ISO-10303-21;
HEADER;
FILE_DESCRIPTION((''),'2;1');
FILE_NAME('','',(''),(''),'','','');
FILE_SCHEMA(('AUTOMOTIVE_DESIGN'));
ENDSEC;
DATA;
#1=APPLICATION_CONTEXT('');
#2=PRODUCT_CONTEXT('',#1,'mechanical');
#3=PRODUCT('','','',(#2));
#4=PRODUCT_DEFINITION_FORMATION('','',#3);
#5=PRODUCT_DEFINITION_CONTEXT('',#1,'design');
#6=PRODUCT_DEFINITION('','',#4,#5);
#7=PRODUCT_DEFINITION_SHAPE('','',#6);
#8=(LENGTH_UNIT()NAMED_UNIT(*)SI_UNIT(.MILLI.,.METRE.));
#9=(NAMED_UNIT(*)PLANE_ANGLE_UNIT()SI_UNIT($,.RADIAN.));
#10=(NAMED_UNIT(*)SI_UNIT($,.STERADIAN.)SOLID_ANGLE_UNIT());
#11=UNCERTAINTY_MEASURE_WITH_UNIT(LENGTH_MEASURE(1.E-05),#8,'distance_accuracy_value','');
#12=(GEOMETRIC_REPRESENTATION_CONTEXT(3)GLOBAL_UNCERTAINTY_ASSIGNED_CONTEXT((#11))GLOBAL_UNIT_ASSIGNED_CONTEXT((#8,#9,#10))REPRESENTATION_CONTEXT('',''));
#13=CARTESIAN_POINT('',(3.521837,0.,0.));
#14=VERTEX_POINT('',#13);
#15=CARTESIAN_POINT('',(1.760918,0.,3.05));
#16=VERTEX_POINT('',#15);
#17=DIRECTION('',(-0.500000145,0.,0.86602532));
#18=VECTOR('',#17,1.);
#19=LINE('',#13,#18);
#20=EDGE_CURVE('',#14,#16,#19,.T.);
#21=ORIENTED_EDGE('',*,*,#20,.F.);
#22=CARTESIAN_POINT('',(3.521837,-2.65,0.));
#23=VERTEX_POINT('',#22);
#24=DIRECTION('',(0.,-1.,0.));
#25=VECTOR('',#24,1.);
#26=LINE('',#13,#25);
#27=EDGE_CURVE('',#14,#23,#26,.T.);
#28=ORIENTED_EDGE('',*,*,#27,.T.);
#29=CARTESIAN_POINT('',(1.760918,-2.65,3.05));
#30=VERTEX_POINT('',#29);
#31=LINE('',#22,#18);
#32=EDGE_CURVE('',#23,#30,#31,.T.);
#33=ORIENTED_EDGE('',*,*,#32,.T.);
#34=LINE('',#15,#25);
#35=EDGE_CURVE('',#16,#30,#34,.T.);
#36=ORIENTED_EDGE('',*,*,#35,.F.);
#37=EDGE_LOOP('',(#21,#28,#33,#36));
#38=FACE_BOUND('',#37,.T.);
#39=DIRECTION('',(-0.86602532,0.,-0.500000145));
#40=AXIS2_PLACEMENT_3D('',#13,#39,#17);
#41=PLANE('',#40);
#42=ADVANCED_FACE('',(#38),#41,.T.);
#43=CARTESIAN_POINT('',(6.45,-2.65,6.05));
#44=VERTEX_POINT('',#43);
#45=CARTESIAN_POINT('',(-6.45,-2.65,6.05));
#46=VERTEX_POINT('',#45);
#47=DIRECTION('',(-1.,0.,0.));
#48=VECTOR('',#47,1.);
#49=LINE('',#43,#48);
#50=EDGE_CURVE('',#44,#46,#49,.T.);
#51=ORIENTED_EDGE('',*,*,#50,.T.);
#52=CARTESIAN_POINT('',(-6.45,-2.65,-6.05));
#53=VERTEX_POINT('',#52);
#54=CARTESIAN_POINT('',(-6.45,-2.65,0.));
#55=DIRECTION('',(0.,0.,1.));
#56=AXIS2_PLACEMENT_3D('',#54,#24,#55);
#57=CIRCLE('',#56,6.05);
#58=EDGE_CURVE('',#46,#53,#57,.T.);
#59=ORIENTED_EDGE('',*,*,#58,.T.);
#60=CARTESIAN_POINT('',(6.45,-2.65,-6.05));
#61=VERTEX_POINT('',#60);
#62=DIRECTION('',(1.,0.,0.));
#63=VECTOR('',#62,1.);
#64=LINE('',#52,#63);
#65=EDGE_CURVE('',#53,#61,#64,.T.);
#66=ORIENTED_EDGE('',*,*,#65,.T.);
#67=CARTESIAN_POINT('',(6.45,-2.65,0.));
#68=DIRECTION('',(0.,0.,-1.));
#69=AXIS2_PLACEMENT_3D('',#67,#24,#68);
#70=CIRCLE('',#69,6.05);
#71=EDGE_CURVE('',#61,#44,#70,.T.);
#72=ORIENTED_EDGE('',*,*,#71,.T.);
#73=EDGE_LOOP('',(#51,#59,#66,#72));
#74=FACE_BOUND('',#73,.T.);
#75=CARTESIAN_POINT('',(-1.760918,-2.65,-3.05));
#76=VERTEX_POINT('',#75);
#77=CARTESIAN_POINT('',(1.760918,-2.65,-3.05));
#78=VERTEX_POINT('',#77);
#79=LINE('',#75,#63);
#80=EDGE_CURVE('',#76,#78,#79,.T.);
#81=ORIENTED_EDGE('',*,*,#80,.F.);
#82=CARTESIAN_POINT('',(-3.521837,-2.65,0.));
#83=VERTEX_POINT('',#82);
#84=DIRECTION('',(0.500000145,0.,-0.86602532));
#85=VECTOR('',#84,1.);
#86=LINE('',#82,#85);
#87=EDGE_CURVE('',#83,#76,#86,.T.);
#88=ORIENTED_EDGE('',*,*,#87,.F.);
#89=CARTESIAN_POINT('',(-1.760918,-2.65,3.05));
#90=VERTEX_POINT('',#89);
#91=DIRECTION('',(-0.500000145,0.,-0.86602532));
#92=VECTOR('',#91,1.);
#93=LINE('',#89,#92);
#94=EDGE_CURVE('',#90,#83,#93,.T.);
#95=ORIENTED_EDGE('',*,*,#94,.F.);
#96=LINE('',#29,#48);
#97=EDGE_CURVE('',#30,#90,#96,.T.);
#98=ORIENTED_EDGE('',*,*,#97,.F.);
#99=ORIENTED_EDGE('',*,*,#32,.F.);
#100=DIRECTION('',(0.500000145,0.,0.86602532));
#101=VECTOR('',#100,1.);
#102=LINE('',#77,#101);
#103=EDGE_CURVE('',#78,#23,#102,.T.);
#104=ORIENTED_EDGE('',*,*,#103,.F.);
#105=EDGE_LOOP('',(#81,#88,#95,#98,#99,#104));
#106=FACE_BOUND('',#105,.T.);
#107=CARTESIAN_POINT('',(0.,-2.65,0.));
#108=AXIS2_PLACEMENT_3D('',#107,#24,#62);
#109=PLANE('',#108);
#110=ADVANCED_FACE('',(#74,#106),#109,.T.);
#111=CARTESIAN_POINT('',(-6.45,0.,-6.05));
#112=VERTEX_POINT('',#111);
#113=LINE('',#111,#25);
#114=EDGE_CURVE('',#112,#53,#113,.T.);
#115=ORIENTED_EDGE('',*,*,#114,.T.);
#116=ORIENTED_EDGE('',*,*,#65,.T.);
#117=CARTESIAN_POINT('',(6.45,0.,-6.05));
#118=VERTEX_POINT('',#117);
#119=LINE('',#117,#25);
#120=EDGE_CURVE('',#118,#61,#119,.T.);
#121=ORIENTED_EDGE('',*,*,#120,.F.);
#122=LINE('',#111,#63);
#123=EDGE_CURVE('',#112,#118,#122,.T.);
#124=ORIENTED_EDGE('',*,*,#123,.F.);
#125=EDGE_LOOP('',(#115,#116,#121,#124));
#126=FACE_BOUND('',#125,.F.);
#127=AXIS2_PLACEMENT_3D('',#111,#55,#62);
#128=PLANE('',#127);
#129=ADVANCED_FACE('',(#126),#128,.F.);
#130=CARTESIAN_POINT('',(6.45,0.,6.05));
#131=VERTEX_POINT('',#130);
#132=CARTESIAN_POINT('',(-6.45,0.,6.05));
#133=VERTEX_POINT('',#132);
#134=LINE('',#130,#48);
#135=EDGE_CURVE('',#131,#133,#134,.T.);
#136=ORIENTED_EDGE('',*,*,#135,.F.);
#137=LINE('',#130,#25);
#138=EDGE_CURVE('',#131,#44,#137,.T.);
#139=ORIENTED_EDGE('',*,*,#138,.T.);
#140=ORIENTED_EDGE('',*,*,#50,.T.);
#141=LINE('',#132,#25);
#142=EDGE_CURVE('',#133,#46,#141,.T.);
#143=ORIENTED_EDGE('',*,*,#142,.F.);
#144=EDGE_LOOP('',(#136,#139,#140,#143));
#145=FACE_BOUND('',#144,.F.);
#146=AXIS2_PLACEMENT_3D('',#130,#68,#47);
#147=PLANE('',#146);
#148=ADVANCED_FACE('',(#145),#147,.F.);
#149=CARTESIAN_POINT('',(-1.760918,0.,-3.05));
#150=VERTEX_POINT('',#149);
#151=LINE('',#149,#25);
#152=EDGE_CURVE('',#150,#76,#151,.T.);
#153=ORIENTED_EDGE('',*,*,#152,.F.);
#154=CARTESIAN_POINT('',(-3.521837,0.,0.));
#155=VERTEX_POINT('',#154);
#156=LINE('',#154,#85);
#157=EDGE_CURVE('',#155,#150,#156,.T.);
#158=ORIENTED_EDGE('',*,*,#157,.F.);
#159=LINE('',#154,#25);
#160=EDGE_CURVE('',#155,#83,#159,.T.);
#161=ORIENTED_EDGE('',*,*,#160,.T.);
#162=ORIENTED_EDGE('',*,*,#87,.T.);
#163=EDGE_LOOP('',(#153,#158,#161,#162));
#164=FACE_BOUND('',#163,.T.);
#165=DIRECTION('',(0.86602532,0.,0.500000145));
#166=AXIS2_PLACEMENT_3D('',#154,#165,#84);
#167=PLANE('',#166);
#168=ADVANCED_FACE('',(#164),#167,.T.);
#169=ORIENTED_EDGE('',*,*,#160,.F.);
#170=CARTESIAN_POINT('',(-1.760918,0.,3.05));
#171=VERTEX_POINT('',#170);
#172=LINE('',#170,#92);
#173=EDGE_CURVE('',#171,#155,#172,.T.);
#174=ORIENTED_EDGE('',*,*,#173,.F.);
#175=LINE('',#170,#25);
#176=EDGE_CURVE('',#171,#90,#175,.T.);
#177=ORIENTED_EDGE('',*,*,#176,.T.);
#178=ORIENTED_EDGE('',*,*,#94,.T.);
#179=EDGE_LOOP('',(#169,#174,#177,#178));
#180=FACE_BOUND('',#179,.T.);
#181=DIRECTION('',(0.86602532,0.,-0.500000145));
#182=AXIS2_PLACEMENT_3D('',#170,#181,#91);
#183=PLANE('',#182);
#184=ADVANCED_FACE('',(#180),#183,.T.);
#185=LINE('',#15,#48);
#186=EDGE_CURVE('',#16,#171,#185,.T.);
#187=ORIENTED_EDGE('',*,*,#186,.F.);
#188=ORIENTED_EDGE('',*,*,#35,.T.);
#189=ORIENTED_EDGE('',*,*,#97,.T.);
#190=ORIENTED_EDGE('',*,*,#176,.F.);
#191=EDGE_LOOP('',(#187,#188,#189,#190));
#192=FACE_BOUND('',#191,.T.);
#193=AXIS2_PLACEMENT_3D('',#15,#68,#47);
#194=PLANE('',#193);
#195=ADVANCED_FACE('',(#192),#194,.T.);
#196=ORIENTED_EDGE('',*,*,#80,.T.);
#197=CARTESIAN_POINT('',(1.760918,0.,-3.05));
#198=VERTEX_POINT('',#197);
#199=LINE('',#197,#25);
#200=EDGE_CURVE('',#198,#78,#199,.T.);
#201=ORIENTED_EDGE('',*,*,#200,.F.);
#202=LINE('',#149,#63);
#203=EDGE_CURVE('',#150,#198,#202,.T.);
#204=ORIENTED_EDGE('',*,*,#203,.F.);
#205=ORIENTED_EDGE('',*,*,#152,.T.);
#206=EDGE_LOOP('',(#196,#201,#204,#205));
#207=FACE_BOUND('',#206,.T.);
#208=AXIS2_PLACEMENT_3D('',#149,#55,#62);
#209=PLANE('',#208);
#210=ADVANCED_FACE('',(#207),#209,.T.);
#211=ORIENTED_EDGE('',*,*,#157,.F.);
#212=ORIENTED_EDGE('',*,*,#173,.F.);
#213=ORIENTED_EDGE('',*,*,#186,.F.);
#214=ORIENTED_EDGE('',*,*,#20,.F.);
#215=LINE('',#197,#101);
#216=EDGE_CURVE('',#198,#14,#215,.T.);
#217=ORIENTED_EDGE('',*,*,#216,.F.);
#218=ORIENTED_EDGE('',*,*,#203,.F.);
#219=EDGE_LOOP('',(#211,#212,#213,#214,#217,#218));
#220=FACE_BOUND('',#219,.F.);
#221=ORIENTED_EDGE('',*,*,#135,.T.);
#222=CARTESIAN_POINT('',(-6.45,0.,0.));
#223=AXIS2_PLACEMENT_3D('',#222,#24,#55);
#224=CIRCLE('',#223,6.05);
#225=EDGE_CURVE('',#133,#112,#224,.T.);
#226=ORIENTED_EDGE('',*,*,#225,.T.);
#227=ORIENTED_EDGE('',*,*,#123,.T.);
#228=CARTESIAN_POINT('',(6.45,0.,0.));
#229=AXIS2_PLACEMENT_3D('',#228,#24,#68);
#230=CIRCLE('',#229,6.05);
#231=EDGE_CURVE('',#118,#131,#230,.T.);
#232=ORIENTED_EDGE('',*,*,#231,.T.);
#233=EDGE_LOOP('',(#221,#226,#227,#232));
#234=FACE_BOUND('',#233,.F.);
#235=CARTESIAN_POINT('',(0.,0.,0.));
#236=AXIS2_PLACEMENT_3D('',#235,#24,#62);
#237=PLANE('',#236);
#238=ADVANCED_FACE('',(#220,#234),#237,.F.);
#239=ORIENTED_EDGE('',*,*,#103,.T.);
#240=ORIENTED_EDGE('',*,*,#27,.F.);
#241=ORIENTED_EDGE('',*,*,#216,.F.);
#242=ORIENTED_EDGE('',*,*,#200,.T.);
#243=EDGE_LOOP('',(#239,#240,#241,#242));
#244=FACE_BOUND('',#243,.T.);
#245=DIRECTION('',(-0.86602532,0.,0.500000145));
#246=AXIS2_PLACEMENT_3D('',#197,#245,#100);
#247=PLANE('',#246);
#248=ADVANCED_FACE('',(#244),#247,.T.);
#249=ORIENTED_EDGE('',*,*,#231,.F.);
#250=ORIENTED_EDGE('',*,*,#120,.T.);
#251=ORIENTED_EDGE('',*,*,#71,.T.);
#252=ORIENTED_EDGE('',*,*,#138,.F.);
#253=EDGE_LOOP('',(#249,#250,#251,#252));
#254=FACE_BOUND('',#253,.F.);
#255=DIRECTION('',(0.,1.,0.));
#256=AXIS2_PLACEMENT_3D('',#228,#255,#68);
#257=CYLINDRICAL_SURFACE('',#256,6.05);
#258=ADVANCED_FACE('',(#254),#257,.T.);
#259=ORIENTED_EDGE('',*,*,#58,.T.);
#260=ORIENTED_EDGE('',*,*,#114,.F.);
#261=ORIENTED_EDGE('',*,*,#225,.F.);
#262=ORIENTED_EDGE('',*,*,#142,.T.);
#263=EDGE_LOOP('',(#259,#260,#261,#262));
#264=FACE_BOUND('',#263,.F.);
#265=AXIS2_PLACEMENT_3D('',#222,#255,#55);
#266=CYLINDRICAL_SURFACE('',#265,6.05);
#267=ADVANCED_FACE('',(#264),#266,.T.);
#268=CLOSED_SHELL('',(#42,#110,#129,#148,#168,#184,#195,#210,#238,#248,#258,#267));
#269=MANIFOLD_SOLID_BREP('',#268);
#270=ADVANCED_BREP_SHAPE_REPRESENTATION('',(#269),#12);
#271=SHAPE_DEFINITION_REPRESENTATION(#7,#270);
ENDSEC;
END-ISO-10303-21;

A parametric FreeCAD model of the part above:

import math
import FreeCAD as App
import Part
import Sketcher
from FreeCAD import Vector
Q = App.Units.Quantity

doc = App.newDocument("Part")
body = doc.addObject("PartDesign::Body", "Body")

# Sketch on XZ plane
sketch1 = body.newObject("Sketcher::SketchObject", "Sketch")
sketch1.AttachmentSupport = (doc.getObject("XZ_Plane"), [""])
sketch1.MapMode = "FlatFace"
sketch1.addGeometry(Part.ArcOfCircle(Part.Circle(Vector(-6.5, 0, 0), Vector(0, 0, 1), 6), math.radians(90), math.radians(270)), False)
sketch1.addGeometry(Part.LineSegment(Vector(-6.5, -6, 0), Vector(6.5, -6, 0)), False)
sketch1.addGeometry(Part.ArcOfCircle(Part.Circle(Vector(6.5, 0, 0), Vector(0, 0, 1), 6), math.radians(-90), math.radians(90)), False)
sketch1.addGeometry(Part.LineSegment(Vector(6.5, 6, 0), Vector(-6.5, 6, 0)), False)
sketch1.addGeometry(Part.LineSegment(Vector(-1.8, 3, 0), Vector(1.8, 3, 0)), False)
sketch1.addGeometry(Part.LineSegment(Vector(1.8, 3, 0), Vector(3.5, 0, 0)), False)
sketch1.addGeometry(Part.LineSegment(Vector(3.5, 0, 0), Vector(1.8, -3, 0)), False)
sketch1.addGeometry(Part.LineSegment(Vector(1.8, -3, 0), Vector(-1.8, -3, 0)), False)
sketch1.addGeometry(Part.LineSegment(Vector(-1.8, -3, 0), Vector(-3.5, 0, 0)), False)
sketch1.addGeometry(Part.LineSegment(Vector(-3.5, 0, 0), Vector(-1.8, 3, 0)), False)
sketch1.addConstraint(Sketcher.Constraint("Tangent", 0, 2, 1, 1))
sketch1.addConstraint(Sketcher.Constraint("Tangent", 1, 2, 2, 1))
sketch1.addConstraint(Sketcher.Constraint("Tangent", 2, 2, 3, 1))
sketch1.addConstraint(Sketcher.Constraint("Tangent", 3, 2, 0, 1))
sketch1.addConstraint(Sketcher.Constraint("Coincident", 4, 2, 5, 1))
sketch1.addConstraint(Sketcher.Constraint("Coincident", 5, 2, 6, 1))
sketch1.addConstraint(Sketcher.Constraint("Coincident", 6, 2, 7, 1))
sketch1.addConstraint(Sketcher.Constraint("Coincident", 7, 2, 8, 1))
sketch1.addConstraint(Sketcher.Constraint("Coincident", 8, 2, 9, 1))
sketch1.addConstraint(Sketcher.Constraint("Coincident", 9, 2, 4, 1))
sketch1.addConstraint(Sketcher.Constraint("Horizontal", 1))
sketch1.addConstraint(Sketcher.Constraint("Horizontal", 3))
sketch1.addConstraint(Sketcher.Constraint("Horizontal", 4))
sketch1.addConstraint(Sketcher.Constraint("Horizontal", 7))
sketch1.addConstraint(Sketcher.Constraint("Symmetric", 0, 3, 2, 3, -1, 1))
sketch1.addConstraint(Sketcher.Constraint("Symmetric", 4, 2, 7, 2, -1, 1))
sketch1.addConstraint(Sketcher.Constraint("Symmetric", 5, 2, 8, 2, -1, 1))
sketch1.addConstraint(Sketcher.Constraint("PointOnObject", 5, 2, -1))
sketch1.addConstraint(Sketcher.Constraint("Parallel", 6, 9))
sketch1.addConstraint(Sketcher.Constraint("Vertical", 4, 2, 6, 2))
sketch1.addConstraint(Sketcher.Constraint("Angle", 5, Q("-59.99999 deg")))
sketch1.addConstraint(Sketcher.Constraint("Radius", 0, Q("6.05 mm")))
sketch1.addConstraint(Sketcher.Constraint("DistanceX", 1, 1, 1, 2, Q("12.9 mm")))
sketch1.addConstraint(Sketcher.Constraint("DistanceY", 4, 2, 2, 2, Q("3 mm")))
sketch1.addConstraint(Sketcher.Constraint("DistanceX", 4, 1, 4, 2, Q("3.521836 mm")))
pad1 = body.newObject("PartDesign::Pad", "Pad")
pad1.Profile = sketch1
pad1.Length = 2.65

doc.recompute()
